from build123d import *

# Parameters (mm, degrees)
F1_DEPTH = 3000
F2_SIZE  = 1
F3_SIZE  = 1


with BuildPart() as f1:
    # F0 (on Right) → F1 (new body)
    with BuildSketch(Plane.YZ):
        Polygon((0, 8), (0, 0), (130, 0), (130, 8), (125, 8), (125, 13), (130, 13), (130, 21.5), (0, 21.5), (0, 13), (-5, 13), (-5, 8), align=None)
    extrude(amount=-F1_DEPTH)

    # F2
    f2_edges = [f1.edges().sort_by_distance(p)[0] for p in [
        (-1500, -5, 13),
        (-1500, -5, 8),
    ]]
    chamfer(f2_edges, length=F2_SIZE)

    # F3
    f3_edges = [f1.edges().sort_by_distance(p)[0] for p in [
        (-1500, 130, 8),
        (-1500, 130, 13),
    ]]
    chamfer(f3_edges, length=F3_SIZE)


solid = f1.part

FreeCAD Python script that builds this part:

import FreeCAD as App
import Part
import Sketcher
Q = App.Units.Quantity


def edges_at(feature, points):
    """Names of the edges that pass closest to the given points."""
    edges = feature.Shape.Edges
    near = lambda p: min(range(len(edges)), key=lambda i: edges[i].distToShape(Part.Vertex(*p))[0])
    return sorted({f"Edge{near(p) + 1}" for p in points})

doc = App.newDocument("Part")
body = doc.addObject("PartDesign::Body", "Body")

sketch1 = body.newObject("Sketcher::SketchObject", "Sketch")
sketch1.AttachmentSupport = (doc.getObject("YZ_Plane"), [""])
sketch1.MapMode = "FlatFace"
sketch1.addGeometry([
    Part.LineSegment(App.Vector(0, 8, 0), App.Vector(0, 0, 0)),
    Part.LineSegment(App.Vector(0, 0, 0), App.Vector(130, 0, 0)),
    Part.LineSegment(App.Vector(130, 0, 0), App.Vector(130, 8, 0)),
    Part.LineSegment(App.Vector(130, 8, 0), App.Vector(125, 8, 0)),
    Part.LineSegment(App.Vector(125, 8, 0), App.Vector(125, 13, 0)),
    Part.LineSegment(App.Vector(125, 13, 0), App.Vector(130, 13, 0)),
    Part.LineSegment(App.Vector(130, 13, 0), App.Vector(130, 22, 0)),
    Part.LineSegment(App.Vector(130, 22, 0), App.Vector(0, 22, 0)),
    Part.LineSegment(App.Vector(0, 22, 0), App.Vector(0, 13, 0)),
    Part.LineSegment(App.Vector(0, 13, 0), App.Vector(-5, 13, 0)),
    Part.LineSegment(App.Vector(-5, 13, 0), App.Vector(-5, 8, 0)),
    Part.LineSegment(App.Vector(-5, 8, 0), App.Vector(0, 8, 0)),
], False)
sketch1.addConstraint([
    Sketcher.Constraint("Coincident", 0, 2, 1, 1),
    Sketcher.Constraint("Coincident", 1, 2, 2, 1),
    Sketcher.Constraint("Coincident", 2, 2, 3, 1),
    Sketcher.Constraint("Coincident", 3, 2, 4, 1),
    Sketcher.Constraint("Coincident", 4, 2, 5, 1),
    Sketcher.Constraint("Coincident", 5, 2, 6, 1),
    Sketcher.Constraint("Coincident", 6, 2, 7, 1),
    Sketcher.Constraint("Coincident", 7, 2, 8, 1),
    Sketcher.Constraint("Coincident", 8, 2, 9, 1),
    Sketcher.Constraint("Coincident", 9, 2, 10, 1),
    Sketcher.Constraint("Coincident", 10, 2, 11, 1),
    Sketcher.Constraint("Coincident", 11, 2, 0, 1),
    Sketcher.Constraint("Vertical", 0),
    Sketcher.Constraint("Horizontal", 1),
    Sketcher.Constraint("Vertical", 2),
    Sketcher.Constraint("Horizontal", 3),
    Sketcher.Constraint("Vertical", 4),
    Sketcher.Constraint("Horizontal", 5),
    Sketcher.Constraint("Vertical", 6),
    Sketcher.Constraint("Horizontal", 7),
    Sketcher.Constraint("Vertical", 8),
    Sketcher.Constraint("Horizontal", 9),
    Sketcher.Constraint("Vertical", 10),
    Sketcher.Constraint("Horizontal", 11),
    Sketcher.Constraint("Coincident", 0, 2, -1, 1),
    Sketcher.Constraint("PointOnObject", 7, 2, -2),
    Sketcher.Constraint("Horizontal", 5, 2, 8, 2),
    Sketcher.Constraint("Horizontal", 3, 2, 10, 2),
    Sketcher.Constraint("Vertical", 2, 2, 5, 2),
    Sketcher.Constraint("Equal", 5, 9),
    Sketcher.Constraint("Equal", 11, 4),
    Sketcher.Constraint("DistanceX", 1, 1, 1, 2, Q("130 mm")),
    Sketcher.Constraint("DistanceX", 3, 2, 3, 1, Q("5 mm")),
    Sketcher.Constraint("DistanceY", 0, 2, 0, 1, Q("8 mm")),
    Sketcher.Constraint("DistanceY", 6, 1, 6, 2, Q("8.5 mm")),
])
pad1 = body.newObject("PartDesign::Pad", "Pad")
pad1.Profile = sketch1
pad1.Length = 3000
pad1.Reversed = True
doc.recompute()

chamfer = body.newObject("PartDesign::Chamfer", "Chamfer")
chamfer.Base = (pad1, edges_at(pad1, [(-1500, -5, 13), (-1500, -5, 8)]))
chamfer.Size = 1
doc.recompute()

chamfer2 = body.newObject("PartDesign::Chamfer", "Chamfer001")
chamfer2.Base = (chamfer, edges_at(chamfer, [(-1500, 130, 8), (-1500, 130, 13)]))
chamfer2.Size = 1

doc.recompute()
